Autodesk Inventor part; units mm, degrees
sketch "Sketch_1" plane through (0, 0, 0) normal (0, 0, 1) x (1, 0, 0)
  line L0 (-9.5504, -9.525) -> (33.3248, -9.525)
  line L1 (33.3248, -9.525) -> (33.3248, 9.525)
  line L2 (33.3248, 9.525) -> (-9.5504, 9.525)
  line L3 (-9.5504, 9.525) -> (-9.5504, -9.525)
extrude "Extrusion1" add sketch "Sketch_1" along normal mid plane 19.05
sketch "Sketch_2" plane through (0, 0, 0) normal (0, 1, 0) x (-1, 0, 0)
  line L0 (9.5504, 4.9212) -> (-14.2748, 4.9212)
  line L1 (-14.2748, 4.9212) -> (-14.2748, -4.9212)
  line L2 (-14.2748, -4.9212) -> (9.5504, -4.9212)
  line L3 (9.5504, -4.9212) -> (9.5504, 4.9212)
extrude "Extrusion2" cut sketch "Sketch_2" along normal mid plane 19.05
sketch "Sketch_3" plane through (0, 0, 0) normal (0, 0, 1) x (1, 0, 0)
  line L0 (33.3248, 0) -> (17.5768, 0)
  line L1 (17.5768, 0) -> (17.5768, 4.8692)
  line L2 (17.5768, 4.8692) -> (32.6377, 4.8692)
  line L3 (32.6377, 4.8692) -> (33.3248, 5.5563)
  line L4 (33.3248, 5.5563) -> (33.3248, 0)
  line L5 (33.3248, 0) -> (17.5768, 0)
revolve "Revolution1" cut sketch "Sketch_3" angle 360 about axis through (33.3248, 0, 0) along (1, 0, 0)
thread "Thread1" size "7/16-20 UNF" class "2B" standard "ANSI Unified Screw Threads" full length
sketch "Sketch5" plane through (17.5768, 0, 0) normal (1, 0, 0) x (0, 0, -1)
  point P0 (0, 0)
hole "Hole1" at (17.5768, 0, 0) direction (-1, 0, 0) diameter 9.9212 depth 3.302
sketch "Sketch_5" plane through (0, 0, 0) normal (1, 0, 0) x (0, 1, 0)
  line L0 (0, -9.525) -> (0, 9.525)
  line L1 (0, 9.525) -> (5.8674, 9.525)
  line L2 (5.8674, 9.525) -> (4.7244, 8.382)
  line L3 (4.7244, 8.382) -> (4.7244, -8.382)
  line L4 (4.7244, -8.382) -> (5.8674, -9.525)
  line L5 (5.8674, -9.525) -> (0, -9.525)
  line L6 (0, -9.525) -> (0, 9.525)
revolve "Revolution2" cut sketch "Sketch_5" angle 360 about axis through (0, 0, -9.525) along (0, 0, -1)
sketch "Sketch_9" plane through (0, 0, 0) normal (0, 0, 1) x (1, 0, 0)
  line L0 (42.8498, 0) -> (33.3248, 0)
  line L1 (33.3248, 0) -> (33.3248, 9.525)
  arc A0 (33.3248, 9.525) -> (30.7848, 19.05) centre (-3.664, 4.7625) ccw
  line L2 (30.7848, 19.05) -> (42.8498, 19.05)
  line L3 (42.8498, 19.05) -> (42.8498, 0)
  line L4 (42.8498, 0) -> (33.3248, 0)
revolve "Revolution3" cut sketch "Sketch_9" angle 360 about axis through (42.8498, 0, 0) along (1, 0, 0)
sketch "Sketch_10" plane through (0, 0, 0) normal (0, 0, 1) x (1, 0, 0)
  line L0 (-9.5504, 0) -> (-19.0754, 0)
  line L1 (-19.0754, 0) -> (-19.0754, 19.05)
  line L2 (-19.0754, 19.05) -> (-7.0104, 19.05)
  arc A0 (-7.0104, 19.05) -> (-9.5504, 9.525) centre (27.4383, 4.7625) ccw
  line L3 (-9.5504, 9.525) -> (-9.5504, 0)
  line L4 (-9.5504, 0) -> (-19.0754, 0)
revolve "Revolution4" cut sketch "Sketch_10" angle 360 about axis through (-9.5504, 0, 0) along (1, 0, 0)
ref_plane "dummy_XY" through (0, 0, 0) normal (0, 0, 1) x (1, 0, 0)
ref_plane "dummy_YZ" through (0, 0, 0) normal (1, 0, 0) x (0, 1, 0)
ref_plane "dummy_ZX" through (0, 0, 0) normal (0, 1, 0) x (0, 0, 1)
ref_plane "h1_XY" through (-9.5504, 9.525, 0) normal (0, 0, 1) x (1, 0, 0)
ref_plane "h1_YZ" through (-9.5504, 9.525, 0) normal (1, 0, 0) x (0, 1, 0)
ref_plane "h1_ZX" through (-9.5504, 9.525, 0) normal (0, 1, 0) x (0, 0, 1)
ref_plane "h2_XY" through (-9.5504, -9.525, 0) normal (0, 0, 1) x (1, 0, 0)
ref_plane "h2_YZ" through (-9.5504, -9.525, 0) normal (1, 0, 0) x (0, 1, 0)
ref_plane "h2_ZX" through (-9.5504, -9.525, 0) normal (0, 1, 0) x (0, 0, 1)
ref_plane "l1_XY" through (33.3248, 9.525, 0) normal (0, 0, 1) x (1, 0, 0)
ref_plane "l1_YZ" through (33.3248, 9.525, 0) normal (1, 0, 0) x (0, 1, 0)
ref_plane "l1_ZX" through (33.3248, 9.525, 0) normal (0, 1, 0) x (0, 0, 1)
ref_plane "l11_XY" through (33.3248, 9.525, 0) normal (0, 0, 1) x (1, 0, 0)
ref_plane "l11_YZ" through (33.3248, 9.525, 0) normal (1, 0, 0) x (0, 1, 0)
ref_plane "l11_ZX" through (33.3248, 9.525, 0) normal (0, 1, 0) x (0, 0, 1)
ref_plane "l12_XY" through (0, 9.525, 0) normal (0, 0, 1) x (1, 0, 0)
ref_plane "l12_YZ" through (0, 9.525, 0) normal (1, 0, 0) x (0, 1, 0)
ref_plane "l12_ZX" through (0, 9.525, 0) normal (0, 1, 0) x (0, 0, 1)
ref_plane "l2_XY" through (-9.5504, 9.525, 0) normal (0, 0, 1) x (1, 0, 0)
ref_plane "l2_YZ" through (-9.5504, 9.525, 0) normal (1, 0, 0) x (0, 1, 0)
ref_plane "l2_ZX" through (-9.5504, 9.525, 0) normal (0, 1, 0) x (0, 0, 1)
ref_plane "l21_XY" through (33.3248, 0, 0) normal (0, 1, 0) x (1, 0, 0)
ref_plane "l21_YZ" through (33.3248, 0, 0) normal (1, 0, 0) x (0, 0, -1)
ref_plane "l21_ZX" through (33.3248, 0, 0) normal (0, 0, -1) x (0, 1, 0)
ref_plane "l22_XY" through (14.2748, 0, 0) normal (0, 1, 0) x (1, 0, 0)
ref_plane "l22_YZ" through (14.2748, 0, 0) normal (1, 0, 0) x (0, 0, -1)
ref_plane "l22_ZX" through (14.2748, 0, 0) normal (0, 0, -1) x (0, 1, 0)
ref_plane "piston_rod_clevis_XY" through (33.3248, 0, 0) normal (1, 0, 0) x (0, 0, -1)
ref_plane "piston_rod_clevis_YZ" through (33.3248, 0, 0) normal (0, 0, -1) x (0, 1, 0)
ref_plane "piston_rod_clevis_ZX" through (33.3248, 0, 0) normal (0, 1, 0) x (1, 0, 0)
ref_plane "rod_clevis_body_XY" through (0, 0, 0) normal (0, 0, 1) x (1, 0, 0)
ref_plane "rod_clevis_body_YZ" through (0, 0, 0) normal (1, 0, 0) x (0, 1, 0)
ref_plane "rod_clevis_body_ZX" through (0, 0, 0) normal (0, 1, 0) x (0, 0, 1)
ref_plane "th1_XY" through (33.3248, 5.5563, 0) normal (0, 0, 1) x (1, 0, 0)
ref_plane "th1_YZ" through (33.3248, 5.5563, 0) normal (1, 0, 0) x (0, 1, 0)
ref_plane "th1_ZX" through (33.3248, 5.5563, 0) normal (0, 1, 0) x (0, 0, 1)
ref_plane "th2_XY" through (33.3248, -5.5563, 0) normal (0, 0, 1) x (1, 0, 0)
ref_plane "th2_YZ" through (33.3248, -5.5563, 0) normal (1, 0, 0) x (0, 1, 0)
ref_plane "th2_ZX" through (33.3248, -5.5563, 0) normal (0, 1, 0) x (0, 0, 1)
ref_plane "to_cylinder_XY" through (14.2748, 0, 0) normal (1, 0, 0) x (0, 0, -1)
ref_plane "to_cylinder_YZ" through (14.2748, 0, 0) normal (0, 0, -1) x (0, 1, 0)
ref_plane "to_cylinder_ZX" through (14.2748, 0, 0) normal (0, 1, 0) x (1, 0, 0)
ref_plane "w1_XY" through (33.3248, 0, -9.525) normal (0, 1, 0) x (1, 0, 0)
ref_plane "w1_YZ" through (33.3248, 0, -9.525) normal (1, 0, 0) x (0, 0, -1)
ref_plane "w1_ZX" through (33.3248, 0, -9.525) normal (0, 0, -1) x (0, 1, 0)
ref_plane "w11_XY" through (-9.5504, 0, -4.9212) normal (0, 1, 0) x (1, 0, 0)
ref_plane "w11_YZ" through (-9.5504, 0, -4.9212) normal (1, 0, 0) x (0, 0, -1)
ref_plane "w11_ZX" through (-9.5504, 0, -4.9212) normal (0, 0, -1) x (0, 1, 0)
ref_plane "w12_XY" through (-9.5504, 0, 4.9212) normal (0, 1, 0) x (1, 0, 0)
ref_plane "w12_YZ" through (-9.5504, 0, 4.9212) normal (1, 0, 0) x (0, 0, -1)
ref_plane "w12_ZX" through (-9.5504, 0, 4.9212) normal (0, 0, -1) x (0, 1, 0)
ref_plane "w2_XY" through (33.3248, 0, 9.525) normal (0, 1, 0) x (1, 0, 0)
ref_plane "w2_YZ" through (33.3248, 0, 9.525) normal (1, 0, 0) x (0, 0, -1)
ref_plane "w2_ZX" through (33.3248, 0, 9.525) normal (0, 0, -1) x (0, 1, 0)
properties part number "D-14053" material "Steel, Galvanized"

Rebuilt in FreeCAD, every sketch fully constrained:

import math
import FreeCAD as App
import Part
import Sketcher

V = App.Vector
Q = App.Units.Quantity

doc = App.newDocument("Part")
body = doc.addObject("PartDesign::Body", "Body")

# Sketch on XY plane
sketch1 = doc.addObject("Sketcher::SketchObject", "Sketch")
body.addObject(sketch1)
sketch1.AttachmentSupport = (doc.XY_Plane, [""])
sketch1.MapMode = "FlatFace"
sketch1.addGeometry([
    Part.LineSegment(V(-10, 10, 0), V(-10, -10, 0)),
    Part.LineSegment(V(-10, -10, 0), V(33, -10, 0)),
    Part.LineSegment(V(33, -10, 0), V(33, 10, 0)),
    Part.LineSegment(V(33, 10, 0), V(-10, 10, 0)),
], False)
sketch1.addConstraint([
    Sketcher.Constraint("Coincident", 0, 2, 1, 1),
    Sketcher.Constraint("Coincident", 1, 2, 2, 1),
    Sketcher.Constraint("Coincident", 2, 2, 3, 1),
    Sketcher.Constraint("Coincident", 3, 2, 0, 1),
    Sketcher.Constraint("Vertical", 0),
    Sketcher.Constraint("Horizontal", 1),
    Sketcher.Constraint("Vertical", 2),
    Sketcher.Constraint("Horizontal", 3),
    Sketcher.Constraint("DistanceY", 0, 2, 0, 1, Q("0.75 in")),
    Sketcher.Constraint("DistanceX", 1, 1, 1, 2, Q("1.688 in")),
    Sketcher.Constraint("DistanceX", 0, 2, -1, 1, Q("0.376 in")),
    Sketcher.Constraint("DistanceY", 0, 2, -1, 1, Q("0.375 in")),
])
pad1 = doc.addObject("PartDesign::Pad", "Pad")
body.addObject(pad1)
pad1.Profile = sketch1
pad1.Length = Q("0.75 in")
pad1.Midplane = True

# Sketch on XZ plane
sketch2 = doc.addObject("Sketcher::SketchObject", "Sketch001")
body.addObject(sketch2)
sketch2.AttachmentSupport = (doc.XZ_Plane, [""])
sketch2.MapMode = "FlatFace"
sketch2.addGeometry([
    Part.LineSegment(V(-10, -5, 0), V(-10, 5, 0)),
    Part.LineSegment(V(-10, 5, 0), V(14, 5, 0)),
    Part.LineSegment(V(14, 5, 0), V(14, -5, 0)),
    Part.LineSegment(V(14, -5, 0), V(-10, -5, 0)),
], False)
sketch2.addConstraint([
    Sketcher.Constraint("Coincident", 0, 2, 1, 1),
    Sketcher.Constraint("Coincident", 1, 2, 2, 1),
    Sketcher.Constraint("Coincident", 2, 2, 3, 1),
    Sketcher.Constraint("Coincident", 3, 2, 0, 1),
    Sketcher.Constraint("Vertical", 0),
    Sketcher.Constraint("Horizontal", 1),
    Sketcher.Constraint("Vertical", 2),
    Sketcher.Constraint("Horizontal", 3),
    Sketcher.Constraint("DistanceX", 1, 1, 1, 2, Q("0.938 in")),
    Sketcher.Constraint("DistanceY", 0, 1, 0, 2, Q("0.3875 in")),
    Sketcher.Constraint("DistanceX", 0, 2, -1, 1, Q("0.376 in")),
    Sketcher.Constraint("DistanceY", -1, 1, 0, 2, Q("4.9212 mm")),
])
pocket1 = doc.addObject("PartDesign::Pocket", "Pocket")
body.addObject(pocket1)
pocket1.Profile = sketch2
pocket1.Length = Q("0.75 in")
pocket1.Midplane = True

# Sketch on XY plane
sketch3 = doc.addObject("Sketcher::SketchObject", "Sketch002")
body.addObject(sketch3)
sketch3.AttachmentSupport = (doc.XY_Plane, [""])
sketch3.MapMode = "FlatFace"
sketch3.addGeometry([
    Part.LineSegment(V(17.6, 0, 0), V(33.3, 0, 0)),  # 0
    Part.LineSegment(V(33.3, 0, 0), V(33.3, 5.6, 0)),  # 1
    Part.LineSegment(V(33.3, 5.6, 0), V(32.6, 4.9, 0)),  # 2
    Part.LineSegment(V(32.6, 4.9, 0), V(17.6, 4.9, 0)),  # 3
    Part.LineSegment(V(17.6, 4.9, 0), V(17.6, 0, 0)),  # 4
], False)
sketch3.addConstraint([
    Sketcher.Constraint("Coincident", 0, 2, 1, 1),
    Sketcher.Constraint("Coincident", 1, 2, 2, 1),
    Sketcher.Constraint("Coincident", 2, 2, 3, 1),
    Sketcher.Constraint("Coincident", 3, 2, 4, 1),
    Sketcher.Constraint("Coincident", 4, 2, 0, 1),
    Sketcher.Constraint("Horizontal", 0),
    Sketcher.Constraint("Vertical", 1),
    Sketcher.Constraint("Horizontal", 3),
    Sketcher.Constraint("Vertical", 4),
    Sketcher.Constraint("PointOnObject", 0, 2, -1),
    Sketcher.Constraint("Angle", 2, Q("-135 deg")),
    Sketcher.Constraint("DistanceX", 0, 1, 0, 2, Q("0.62 in")),
    Sketcher.Constraint("DistanceY", 1, 1, 1, 2, Q("0.218752 in")),
    Sketcher.Constraint("DistanceY", 4, 2, 4, 1, Q("0.1917 in")),
    Sketcher.Constraint("DistanceX", -1, 1, 0, 2, Q("1.312 in")),
])
groove = doc.addObject("PartDesign::Groove", "Groove")
body.addObject(groove)
groove.Profile = sketch3
groove.ReferenceAxis = (sketch3, ["H_Axis"])
groove.Angle = 360

# Sketch on YZ plane
sketch4 = doc.addObject("Sketcher::SketchObject", "Sketch003")
body.addObject(sketch4)
sketch4.AttachmentSupport = (doc.YZ_Plane, [""])
sketch4.MapMode = "FlatFace"
sketch4.AttachmentOffset = App.Placement(V(0, 0, 0.692 * 25.4), App.Rotation())
sketch4.addGeometry(Part.Circle(V(0, 0, 0), V(0, 0, 1), 5), False)
sketch4.addConstraint([
    Sketcher.Constraint("Coincident", 0, 3, -1, 1),
    Sketcher.Constraint("Diameter", 0, Q("0.3906 in")),
])
doc.recompute()
hole = doc.addObject("PartDesign::Hole", "Hole")
body.addObject(hole)
hole.Profile = sketch4
hole.ThreadType = "None"
hole.Diameter = Q("0.3905984 in")
hole.DepthType = "Dimension"
hole.Depth = Q("0.13 in")
hole.DrillPoint = "Flat"

# Sketch on YZ plane
sketch5 = doc.addObject("Sketcher::SketchObject", "Sketch004")
body.addObject(sketch5)
sketch5.AttachmentSupport = (doc.YZ_Plane, [""])
sketch5.MapMode = "FlatFace"
sketch5.addGeometry([
    Part.LineSegment(V(0, 9.5, 0), V(0, -9.5, 0)),  # 0
    Part.LineSegment(V(0, -9.5, 0), V(5.9, -9.5, 0)),  # 1
    Part.LineSegment(V(5.9, -9.5, 0), V(4.7, -8.4, 0)),  # 2
    Part.LineSegment(V(4.7, -8.4, 0), V(4.7, 8.4, 0)),  # 3
    Part.LineSegment(V(4.7, 8.4, 0), V(5.9, 9.5, 0)),  # 4
    Part.LineSegment(V(5.9, 9.5, 0), V(0, 9.5, 0)),  # 5
], False)
sketch5.addConstraint([
    Sketcher.Constraint("Coincident", 0, 2, 1, 1),
    Sketcher.Constraint("Coincident", 1, 2, 2, 1),
    Sketcher.Constraint("Coincident", 2, 2, 3, 1),
    Sketcher.Constraint("Coincident", 3, 2, 4, 1),
    Sketcher.Constraint("Coincident", 4, 2, 5, 1),
    Sketcher.Constraint("Coincident", 5, 2, 0, 1),
    Sketcher.Constraint("Vertical", 0),
    Sketcher.Constraint("Horizontal", 1),
    Sketcher.Constraint("Vertical", 3),
    Sketcher.Constraint("Horizontal", 5),
    Sketcher.Constraint("Symmetric", 0, 2, 5, 2, -1, 1),
    Sketcher.Constraint("Perpendicular", 2, 4),
    Sketcher.Constraint("Vertical", 1, 2, 4, 2),
    Sketcher.Constraint("Equal", 2, 4),
    Sketcher.Constraint("DistanceY", 0, 2, 0, 1, Q("0.75 in")),
    Sketcher.Constraint("DistanceY", 3, 1, 3, 2, Q("0.66 in")),
    Sketcher.Constraint("DistanceX", 1, 1, 1, 2, Q("0.231 in")),
])
groove2 = doc.addObject("PartDesign::Groove", "Groove001")
body.addObject(groove2)
groove2.Profile = sketch5
groove2.ReferenceAxis = (sketch5, ["V_Axis"])
groove2.Angle = 360

# Sketch on XY plane
sketch6 = doc.addObject("Sketcher::SketchObject", "Sketch005")
body.addObject(sketch6)
sketch6.AttachmentSupport = (doc.XY_Plane, [""])
sketch6.MapMode = "FlatFace"
sketch6.addGeometry([
    Part.LineSegment(V(33, 0, 0), V(43, 0, 0)),  # 0
    Part.LineSegment(V(43, 0, 0), V(43, 19, 0)),  # 1
    Part.LineSegment(V(43, 19, 0), V(31, 19, 0)),  # 2
    Part.ArcOfCircle(Part.Circle(V(-4, 5, 0), V(0, 0, 1), 37), math.radians(7.34), math.radians(22.53)),  # 3
    Part.LineSegment(V(33, 10, 0), V(33, 0, 0)),  # 4
], False)
sketch6.addConstraint([
    Sketcher.Constraint("Coincident", 0, 2, 1, 1),
    Sketcher.Constraint("Coincident", 1, 2, 2, 1),
    Sketcher.Constraint("Coincident", 2, 2, 3, 2),
    Sketcher.Constraint("Coincident", 3, 1, 4, 1),
    Sketcher.Constraint("Coincident", 4, 2, 0, 1),
    Sketcher.Constraint("Horizontal", 0),
    Sketcher.Constraint("Vertical", 1),
    Sketcher.Constraint("Horizontal", 2),
    Sketcher.Constraint("Vertical", 4),
    Sketcher.Constraint("PointOnObject", 0, 2, -1),
    Sketcher.Constraint("Equal", 0, 4),
    Sketcher.Constraint("DistanceY", 1, 1, 1, 2, Q("0.75 in")),
    Sketcher.Constraint("DistanceX", 2, 2, 3, 1, Q("0.1 in")),
    Sketcher.Constraint("DistanceX", 0, 1, 0, 2, Q("0.375 in")),
    Sketcher.Constraint("Radius", 3, Q("37.2941 mm")),
    Sketcher.Constraint("DistanceX", -1, 1, 0, 2, Q("1.687 in")),
])
groove3 = doc.addObject("PartDesign::Groove", "Groove002")
body.addObject(groove3)
groove3.Profile = sketch6
groove3.ReferenceAxis = (sketch6, ["H_Axis"])
groove3.Angle = 360

# Sketch on XY plane
sketch7 = doc.addObject("Sketcher::SketchObject", "Sketch006")
body.addObject(sketch7)
sketch7.AttachmentSupport = (doc.XY_Plane, [""])
sketch7.MapMode = "FlatFace"
sketch7.addGeometry([
    Part.LineSegment(V(-19, 0, 0), V(-10, 0, 0)),  # 0
    Part.LineSegment(V(-10, 0, 0), V(-10, 10, 0)),  # 1
    Part.ArcOfCircle(Part.Circle(V(27, 5, 0), V(0, 0, 1), 37), math.radians(157.47), math.radians(172.66)),  # 2
    Part.LineSegment(V(-7, 19, 0), V(-19, 19, 0)),  # 3
    Part.LineSegment(V(-19, 19, 0), V(-19, 0, 0)),  # 4
], False)
sketch7.addConstraint([
    Sketcher.Constraint("Coincident", 0, 2, 1, 1),
    Sketcher.Constraint("Coincident", 1, 2, 2, 2),
    Sketcher.Constraint("Coincident", 2, 1, 3, 1),
    Sketcher.Constraint("Coincident", 3, 2, 4, 1),
    Sketcher.Constraint("Coincident", 4, 2, 0, 1),
    Sketcher.Constraint("Horizontal", 0),
    Sketcher.Constraint("Vertical", 1),
    Sketcher.Constraint("Horizontal", 3),
    Sketcher.Constraint("Vertical", 4),
    Sketcher.Constraint("PointOnObject", 0, 2, -1),
    Sketcher.Constraint("Equal", 0, 1),
    Sketcher.Constraint("DistanceY", 4, 2, 4, 1, Q("0.75 in")),
    Sketcher.Constraint("DistanceX", 1, 2, 2, 1, Q("0.1 in")),
    Sketcher.Constraint("DistanceX", 0, 1, 0, 2, Q("0.375 in")),
    Sketcher.Constraint("Radius", 2, Q("37.294 mm")),
    Sketcher.Constraint("DistanceX", 0, 2, -1, 1, Q("0.376 in")),
])
groove4 = doc.addObject("PartDesign::Groove", "Groove003")
body.addObject(groove4)
groove4.Profile = sketch7
groove4.ReferenceAxis = (sketch7, ["H_Axis"])
groove4.Angle = 360

doc.recompute()
